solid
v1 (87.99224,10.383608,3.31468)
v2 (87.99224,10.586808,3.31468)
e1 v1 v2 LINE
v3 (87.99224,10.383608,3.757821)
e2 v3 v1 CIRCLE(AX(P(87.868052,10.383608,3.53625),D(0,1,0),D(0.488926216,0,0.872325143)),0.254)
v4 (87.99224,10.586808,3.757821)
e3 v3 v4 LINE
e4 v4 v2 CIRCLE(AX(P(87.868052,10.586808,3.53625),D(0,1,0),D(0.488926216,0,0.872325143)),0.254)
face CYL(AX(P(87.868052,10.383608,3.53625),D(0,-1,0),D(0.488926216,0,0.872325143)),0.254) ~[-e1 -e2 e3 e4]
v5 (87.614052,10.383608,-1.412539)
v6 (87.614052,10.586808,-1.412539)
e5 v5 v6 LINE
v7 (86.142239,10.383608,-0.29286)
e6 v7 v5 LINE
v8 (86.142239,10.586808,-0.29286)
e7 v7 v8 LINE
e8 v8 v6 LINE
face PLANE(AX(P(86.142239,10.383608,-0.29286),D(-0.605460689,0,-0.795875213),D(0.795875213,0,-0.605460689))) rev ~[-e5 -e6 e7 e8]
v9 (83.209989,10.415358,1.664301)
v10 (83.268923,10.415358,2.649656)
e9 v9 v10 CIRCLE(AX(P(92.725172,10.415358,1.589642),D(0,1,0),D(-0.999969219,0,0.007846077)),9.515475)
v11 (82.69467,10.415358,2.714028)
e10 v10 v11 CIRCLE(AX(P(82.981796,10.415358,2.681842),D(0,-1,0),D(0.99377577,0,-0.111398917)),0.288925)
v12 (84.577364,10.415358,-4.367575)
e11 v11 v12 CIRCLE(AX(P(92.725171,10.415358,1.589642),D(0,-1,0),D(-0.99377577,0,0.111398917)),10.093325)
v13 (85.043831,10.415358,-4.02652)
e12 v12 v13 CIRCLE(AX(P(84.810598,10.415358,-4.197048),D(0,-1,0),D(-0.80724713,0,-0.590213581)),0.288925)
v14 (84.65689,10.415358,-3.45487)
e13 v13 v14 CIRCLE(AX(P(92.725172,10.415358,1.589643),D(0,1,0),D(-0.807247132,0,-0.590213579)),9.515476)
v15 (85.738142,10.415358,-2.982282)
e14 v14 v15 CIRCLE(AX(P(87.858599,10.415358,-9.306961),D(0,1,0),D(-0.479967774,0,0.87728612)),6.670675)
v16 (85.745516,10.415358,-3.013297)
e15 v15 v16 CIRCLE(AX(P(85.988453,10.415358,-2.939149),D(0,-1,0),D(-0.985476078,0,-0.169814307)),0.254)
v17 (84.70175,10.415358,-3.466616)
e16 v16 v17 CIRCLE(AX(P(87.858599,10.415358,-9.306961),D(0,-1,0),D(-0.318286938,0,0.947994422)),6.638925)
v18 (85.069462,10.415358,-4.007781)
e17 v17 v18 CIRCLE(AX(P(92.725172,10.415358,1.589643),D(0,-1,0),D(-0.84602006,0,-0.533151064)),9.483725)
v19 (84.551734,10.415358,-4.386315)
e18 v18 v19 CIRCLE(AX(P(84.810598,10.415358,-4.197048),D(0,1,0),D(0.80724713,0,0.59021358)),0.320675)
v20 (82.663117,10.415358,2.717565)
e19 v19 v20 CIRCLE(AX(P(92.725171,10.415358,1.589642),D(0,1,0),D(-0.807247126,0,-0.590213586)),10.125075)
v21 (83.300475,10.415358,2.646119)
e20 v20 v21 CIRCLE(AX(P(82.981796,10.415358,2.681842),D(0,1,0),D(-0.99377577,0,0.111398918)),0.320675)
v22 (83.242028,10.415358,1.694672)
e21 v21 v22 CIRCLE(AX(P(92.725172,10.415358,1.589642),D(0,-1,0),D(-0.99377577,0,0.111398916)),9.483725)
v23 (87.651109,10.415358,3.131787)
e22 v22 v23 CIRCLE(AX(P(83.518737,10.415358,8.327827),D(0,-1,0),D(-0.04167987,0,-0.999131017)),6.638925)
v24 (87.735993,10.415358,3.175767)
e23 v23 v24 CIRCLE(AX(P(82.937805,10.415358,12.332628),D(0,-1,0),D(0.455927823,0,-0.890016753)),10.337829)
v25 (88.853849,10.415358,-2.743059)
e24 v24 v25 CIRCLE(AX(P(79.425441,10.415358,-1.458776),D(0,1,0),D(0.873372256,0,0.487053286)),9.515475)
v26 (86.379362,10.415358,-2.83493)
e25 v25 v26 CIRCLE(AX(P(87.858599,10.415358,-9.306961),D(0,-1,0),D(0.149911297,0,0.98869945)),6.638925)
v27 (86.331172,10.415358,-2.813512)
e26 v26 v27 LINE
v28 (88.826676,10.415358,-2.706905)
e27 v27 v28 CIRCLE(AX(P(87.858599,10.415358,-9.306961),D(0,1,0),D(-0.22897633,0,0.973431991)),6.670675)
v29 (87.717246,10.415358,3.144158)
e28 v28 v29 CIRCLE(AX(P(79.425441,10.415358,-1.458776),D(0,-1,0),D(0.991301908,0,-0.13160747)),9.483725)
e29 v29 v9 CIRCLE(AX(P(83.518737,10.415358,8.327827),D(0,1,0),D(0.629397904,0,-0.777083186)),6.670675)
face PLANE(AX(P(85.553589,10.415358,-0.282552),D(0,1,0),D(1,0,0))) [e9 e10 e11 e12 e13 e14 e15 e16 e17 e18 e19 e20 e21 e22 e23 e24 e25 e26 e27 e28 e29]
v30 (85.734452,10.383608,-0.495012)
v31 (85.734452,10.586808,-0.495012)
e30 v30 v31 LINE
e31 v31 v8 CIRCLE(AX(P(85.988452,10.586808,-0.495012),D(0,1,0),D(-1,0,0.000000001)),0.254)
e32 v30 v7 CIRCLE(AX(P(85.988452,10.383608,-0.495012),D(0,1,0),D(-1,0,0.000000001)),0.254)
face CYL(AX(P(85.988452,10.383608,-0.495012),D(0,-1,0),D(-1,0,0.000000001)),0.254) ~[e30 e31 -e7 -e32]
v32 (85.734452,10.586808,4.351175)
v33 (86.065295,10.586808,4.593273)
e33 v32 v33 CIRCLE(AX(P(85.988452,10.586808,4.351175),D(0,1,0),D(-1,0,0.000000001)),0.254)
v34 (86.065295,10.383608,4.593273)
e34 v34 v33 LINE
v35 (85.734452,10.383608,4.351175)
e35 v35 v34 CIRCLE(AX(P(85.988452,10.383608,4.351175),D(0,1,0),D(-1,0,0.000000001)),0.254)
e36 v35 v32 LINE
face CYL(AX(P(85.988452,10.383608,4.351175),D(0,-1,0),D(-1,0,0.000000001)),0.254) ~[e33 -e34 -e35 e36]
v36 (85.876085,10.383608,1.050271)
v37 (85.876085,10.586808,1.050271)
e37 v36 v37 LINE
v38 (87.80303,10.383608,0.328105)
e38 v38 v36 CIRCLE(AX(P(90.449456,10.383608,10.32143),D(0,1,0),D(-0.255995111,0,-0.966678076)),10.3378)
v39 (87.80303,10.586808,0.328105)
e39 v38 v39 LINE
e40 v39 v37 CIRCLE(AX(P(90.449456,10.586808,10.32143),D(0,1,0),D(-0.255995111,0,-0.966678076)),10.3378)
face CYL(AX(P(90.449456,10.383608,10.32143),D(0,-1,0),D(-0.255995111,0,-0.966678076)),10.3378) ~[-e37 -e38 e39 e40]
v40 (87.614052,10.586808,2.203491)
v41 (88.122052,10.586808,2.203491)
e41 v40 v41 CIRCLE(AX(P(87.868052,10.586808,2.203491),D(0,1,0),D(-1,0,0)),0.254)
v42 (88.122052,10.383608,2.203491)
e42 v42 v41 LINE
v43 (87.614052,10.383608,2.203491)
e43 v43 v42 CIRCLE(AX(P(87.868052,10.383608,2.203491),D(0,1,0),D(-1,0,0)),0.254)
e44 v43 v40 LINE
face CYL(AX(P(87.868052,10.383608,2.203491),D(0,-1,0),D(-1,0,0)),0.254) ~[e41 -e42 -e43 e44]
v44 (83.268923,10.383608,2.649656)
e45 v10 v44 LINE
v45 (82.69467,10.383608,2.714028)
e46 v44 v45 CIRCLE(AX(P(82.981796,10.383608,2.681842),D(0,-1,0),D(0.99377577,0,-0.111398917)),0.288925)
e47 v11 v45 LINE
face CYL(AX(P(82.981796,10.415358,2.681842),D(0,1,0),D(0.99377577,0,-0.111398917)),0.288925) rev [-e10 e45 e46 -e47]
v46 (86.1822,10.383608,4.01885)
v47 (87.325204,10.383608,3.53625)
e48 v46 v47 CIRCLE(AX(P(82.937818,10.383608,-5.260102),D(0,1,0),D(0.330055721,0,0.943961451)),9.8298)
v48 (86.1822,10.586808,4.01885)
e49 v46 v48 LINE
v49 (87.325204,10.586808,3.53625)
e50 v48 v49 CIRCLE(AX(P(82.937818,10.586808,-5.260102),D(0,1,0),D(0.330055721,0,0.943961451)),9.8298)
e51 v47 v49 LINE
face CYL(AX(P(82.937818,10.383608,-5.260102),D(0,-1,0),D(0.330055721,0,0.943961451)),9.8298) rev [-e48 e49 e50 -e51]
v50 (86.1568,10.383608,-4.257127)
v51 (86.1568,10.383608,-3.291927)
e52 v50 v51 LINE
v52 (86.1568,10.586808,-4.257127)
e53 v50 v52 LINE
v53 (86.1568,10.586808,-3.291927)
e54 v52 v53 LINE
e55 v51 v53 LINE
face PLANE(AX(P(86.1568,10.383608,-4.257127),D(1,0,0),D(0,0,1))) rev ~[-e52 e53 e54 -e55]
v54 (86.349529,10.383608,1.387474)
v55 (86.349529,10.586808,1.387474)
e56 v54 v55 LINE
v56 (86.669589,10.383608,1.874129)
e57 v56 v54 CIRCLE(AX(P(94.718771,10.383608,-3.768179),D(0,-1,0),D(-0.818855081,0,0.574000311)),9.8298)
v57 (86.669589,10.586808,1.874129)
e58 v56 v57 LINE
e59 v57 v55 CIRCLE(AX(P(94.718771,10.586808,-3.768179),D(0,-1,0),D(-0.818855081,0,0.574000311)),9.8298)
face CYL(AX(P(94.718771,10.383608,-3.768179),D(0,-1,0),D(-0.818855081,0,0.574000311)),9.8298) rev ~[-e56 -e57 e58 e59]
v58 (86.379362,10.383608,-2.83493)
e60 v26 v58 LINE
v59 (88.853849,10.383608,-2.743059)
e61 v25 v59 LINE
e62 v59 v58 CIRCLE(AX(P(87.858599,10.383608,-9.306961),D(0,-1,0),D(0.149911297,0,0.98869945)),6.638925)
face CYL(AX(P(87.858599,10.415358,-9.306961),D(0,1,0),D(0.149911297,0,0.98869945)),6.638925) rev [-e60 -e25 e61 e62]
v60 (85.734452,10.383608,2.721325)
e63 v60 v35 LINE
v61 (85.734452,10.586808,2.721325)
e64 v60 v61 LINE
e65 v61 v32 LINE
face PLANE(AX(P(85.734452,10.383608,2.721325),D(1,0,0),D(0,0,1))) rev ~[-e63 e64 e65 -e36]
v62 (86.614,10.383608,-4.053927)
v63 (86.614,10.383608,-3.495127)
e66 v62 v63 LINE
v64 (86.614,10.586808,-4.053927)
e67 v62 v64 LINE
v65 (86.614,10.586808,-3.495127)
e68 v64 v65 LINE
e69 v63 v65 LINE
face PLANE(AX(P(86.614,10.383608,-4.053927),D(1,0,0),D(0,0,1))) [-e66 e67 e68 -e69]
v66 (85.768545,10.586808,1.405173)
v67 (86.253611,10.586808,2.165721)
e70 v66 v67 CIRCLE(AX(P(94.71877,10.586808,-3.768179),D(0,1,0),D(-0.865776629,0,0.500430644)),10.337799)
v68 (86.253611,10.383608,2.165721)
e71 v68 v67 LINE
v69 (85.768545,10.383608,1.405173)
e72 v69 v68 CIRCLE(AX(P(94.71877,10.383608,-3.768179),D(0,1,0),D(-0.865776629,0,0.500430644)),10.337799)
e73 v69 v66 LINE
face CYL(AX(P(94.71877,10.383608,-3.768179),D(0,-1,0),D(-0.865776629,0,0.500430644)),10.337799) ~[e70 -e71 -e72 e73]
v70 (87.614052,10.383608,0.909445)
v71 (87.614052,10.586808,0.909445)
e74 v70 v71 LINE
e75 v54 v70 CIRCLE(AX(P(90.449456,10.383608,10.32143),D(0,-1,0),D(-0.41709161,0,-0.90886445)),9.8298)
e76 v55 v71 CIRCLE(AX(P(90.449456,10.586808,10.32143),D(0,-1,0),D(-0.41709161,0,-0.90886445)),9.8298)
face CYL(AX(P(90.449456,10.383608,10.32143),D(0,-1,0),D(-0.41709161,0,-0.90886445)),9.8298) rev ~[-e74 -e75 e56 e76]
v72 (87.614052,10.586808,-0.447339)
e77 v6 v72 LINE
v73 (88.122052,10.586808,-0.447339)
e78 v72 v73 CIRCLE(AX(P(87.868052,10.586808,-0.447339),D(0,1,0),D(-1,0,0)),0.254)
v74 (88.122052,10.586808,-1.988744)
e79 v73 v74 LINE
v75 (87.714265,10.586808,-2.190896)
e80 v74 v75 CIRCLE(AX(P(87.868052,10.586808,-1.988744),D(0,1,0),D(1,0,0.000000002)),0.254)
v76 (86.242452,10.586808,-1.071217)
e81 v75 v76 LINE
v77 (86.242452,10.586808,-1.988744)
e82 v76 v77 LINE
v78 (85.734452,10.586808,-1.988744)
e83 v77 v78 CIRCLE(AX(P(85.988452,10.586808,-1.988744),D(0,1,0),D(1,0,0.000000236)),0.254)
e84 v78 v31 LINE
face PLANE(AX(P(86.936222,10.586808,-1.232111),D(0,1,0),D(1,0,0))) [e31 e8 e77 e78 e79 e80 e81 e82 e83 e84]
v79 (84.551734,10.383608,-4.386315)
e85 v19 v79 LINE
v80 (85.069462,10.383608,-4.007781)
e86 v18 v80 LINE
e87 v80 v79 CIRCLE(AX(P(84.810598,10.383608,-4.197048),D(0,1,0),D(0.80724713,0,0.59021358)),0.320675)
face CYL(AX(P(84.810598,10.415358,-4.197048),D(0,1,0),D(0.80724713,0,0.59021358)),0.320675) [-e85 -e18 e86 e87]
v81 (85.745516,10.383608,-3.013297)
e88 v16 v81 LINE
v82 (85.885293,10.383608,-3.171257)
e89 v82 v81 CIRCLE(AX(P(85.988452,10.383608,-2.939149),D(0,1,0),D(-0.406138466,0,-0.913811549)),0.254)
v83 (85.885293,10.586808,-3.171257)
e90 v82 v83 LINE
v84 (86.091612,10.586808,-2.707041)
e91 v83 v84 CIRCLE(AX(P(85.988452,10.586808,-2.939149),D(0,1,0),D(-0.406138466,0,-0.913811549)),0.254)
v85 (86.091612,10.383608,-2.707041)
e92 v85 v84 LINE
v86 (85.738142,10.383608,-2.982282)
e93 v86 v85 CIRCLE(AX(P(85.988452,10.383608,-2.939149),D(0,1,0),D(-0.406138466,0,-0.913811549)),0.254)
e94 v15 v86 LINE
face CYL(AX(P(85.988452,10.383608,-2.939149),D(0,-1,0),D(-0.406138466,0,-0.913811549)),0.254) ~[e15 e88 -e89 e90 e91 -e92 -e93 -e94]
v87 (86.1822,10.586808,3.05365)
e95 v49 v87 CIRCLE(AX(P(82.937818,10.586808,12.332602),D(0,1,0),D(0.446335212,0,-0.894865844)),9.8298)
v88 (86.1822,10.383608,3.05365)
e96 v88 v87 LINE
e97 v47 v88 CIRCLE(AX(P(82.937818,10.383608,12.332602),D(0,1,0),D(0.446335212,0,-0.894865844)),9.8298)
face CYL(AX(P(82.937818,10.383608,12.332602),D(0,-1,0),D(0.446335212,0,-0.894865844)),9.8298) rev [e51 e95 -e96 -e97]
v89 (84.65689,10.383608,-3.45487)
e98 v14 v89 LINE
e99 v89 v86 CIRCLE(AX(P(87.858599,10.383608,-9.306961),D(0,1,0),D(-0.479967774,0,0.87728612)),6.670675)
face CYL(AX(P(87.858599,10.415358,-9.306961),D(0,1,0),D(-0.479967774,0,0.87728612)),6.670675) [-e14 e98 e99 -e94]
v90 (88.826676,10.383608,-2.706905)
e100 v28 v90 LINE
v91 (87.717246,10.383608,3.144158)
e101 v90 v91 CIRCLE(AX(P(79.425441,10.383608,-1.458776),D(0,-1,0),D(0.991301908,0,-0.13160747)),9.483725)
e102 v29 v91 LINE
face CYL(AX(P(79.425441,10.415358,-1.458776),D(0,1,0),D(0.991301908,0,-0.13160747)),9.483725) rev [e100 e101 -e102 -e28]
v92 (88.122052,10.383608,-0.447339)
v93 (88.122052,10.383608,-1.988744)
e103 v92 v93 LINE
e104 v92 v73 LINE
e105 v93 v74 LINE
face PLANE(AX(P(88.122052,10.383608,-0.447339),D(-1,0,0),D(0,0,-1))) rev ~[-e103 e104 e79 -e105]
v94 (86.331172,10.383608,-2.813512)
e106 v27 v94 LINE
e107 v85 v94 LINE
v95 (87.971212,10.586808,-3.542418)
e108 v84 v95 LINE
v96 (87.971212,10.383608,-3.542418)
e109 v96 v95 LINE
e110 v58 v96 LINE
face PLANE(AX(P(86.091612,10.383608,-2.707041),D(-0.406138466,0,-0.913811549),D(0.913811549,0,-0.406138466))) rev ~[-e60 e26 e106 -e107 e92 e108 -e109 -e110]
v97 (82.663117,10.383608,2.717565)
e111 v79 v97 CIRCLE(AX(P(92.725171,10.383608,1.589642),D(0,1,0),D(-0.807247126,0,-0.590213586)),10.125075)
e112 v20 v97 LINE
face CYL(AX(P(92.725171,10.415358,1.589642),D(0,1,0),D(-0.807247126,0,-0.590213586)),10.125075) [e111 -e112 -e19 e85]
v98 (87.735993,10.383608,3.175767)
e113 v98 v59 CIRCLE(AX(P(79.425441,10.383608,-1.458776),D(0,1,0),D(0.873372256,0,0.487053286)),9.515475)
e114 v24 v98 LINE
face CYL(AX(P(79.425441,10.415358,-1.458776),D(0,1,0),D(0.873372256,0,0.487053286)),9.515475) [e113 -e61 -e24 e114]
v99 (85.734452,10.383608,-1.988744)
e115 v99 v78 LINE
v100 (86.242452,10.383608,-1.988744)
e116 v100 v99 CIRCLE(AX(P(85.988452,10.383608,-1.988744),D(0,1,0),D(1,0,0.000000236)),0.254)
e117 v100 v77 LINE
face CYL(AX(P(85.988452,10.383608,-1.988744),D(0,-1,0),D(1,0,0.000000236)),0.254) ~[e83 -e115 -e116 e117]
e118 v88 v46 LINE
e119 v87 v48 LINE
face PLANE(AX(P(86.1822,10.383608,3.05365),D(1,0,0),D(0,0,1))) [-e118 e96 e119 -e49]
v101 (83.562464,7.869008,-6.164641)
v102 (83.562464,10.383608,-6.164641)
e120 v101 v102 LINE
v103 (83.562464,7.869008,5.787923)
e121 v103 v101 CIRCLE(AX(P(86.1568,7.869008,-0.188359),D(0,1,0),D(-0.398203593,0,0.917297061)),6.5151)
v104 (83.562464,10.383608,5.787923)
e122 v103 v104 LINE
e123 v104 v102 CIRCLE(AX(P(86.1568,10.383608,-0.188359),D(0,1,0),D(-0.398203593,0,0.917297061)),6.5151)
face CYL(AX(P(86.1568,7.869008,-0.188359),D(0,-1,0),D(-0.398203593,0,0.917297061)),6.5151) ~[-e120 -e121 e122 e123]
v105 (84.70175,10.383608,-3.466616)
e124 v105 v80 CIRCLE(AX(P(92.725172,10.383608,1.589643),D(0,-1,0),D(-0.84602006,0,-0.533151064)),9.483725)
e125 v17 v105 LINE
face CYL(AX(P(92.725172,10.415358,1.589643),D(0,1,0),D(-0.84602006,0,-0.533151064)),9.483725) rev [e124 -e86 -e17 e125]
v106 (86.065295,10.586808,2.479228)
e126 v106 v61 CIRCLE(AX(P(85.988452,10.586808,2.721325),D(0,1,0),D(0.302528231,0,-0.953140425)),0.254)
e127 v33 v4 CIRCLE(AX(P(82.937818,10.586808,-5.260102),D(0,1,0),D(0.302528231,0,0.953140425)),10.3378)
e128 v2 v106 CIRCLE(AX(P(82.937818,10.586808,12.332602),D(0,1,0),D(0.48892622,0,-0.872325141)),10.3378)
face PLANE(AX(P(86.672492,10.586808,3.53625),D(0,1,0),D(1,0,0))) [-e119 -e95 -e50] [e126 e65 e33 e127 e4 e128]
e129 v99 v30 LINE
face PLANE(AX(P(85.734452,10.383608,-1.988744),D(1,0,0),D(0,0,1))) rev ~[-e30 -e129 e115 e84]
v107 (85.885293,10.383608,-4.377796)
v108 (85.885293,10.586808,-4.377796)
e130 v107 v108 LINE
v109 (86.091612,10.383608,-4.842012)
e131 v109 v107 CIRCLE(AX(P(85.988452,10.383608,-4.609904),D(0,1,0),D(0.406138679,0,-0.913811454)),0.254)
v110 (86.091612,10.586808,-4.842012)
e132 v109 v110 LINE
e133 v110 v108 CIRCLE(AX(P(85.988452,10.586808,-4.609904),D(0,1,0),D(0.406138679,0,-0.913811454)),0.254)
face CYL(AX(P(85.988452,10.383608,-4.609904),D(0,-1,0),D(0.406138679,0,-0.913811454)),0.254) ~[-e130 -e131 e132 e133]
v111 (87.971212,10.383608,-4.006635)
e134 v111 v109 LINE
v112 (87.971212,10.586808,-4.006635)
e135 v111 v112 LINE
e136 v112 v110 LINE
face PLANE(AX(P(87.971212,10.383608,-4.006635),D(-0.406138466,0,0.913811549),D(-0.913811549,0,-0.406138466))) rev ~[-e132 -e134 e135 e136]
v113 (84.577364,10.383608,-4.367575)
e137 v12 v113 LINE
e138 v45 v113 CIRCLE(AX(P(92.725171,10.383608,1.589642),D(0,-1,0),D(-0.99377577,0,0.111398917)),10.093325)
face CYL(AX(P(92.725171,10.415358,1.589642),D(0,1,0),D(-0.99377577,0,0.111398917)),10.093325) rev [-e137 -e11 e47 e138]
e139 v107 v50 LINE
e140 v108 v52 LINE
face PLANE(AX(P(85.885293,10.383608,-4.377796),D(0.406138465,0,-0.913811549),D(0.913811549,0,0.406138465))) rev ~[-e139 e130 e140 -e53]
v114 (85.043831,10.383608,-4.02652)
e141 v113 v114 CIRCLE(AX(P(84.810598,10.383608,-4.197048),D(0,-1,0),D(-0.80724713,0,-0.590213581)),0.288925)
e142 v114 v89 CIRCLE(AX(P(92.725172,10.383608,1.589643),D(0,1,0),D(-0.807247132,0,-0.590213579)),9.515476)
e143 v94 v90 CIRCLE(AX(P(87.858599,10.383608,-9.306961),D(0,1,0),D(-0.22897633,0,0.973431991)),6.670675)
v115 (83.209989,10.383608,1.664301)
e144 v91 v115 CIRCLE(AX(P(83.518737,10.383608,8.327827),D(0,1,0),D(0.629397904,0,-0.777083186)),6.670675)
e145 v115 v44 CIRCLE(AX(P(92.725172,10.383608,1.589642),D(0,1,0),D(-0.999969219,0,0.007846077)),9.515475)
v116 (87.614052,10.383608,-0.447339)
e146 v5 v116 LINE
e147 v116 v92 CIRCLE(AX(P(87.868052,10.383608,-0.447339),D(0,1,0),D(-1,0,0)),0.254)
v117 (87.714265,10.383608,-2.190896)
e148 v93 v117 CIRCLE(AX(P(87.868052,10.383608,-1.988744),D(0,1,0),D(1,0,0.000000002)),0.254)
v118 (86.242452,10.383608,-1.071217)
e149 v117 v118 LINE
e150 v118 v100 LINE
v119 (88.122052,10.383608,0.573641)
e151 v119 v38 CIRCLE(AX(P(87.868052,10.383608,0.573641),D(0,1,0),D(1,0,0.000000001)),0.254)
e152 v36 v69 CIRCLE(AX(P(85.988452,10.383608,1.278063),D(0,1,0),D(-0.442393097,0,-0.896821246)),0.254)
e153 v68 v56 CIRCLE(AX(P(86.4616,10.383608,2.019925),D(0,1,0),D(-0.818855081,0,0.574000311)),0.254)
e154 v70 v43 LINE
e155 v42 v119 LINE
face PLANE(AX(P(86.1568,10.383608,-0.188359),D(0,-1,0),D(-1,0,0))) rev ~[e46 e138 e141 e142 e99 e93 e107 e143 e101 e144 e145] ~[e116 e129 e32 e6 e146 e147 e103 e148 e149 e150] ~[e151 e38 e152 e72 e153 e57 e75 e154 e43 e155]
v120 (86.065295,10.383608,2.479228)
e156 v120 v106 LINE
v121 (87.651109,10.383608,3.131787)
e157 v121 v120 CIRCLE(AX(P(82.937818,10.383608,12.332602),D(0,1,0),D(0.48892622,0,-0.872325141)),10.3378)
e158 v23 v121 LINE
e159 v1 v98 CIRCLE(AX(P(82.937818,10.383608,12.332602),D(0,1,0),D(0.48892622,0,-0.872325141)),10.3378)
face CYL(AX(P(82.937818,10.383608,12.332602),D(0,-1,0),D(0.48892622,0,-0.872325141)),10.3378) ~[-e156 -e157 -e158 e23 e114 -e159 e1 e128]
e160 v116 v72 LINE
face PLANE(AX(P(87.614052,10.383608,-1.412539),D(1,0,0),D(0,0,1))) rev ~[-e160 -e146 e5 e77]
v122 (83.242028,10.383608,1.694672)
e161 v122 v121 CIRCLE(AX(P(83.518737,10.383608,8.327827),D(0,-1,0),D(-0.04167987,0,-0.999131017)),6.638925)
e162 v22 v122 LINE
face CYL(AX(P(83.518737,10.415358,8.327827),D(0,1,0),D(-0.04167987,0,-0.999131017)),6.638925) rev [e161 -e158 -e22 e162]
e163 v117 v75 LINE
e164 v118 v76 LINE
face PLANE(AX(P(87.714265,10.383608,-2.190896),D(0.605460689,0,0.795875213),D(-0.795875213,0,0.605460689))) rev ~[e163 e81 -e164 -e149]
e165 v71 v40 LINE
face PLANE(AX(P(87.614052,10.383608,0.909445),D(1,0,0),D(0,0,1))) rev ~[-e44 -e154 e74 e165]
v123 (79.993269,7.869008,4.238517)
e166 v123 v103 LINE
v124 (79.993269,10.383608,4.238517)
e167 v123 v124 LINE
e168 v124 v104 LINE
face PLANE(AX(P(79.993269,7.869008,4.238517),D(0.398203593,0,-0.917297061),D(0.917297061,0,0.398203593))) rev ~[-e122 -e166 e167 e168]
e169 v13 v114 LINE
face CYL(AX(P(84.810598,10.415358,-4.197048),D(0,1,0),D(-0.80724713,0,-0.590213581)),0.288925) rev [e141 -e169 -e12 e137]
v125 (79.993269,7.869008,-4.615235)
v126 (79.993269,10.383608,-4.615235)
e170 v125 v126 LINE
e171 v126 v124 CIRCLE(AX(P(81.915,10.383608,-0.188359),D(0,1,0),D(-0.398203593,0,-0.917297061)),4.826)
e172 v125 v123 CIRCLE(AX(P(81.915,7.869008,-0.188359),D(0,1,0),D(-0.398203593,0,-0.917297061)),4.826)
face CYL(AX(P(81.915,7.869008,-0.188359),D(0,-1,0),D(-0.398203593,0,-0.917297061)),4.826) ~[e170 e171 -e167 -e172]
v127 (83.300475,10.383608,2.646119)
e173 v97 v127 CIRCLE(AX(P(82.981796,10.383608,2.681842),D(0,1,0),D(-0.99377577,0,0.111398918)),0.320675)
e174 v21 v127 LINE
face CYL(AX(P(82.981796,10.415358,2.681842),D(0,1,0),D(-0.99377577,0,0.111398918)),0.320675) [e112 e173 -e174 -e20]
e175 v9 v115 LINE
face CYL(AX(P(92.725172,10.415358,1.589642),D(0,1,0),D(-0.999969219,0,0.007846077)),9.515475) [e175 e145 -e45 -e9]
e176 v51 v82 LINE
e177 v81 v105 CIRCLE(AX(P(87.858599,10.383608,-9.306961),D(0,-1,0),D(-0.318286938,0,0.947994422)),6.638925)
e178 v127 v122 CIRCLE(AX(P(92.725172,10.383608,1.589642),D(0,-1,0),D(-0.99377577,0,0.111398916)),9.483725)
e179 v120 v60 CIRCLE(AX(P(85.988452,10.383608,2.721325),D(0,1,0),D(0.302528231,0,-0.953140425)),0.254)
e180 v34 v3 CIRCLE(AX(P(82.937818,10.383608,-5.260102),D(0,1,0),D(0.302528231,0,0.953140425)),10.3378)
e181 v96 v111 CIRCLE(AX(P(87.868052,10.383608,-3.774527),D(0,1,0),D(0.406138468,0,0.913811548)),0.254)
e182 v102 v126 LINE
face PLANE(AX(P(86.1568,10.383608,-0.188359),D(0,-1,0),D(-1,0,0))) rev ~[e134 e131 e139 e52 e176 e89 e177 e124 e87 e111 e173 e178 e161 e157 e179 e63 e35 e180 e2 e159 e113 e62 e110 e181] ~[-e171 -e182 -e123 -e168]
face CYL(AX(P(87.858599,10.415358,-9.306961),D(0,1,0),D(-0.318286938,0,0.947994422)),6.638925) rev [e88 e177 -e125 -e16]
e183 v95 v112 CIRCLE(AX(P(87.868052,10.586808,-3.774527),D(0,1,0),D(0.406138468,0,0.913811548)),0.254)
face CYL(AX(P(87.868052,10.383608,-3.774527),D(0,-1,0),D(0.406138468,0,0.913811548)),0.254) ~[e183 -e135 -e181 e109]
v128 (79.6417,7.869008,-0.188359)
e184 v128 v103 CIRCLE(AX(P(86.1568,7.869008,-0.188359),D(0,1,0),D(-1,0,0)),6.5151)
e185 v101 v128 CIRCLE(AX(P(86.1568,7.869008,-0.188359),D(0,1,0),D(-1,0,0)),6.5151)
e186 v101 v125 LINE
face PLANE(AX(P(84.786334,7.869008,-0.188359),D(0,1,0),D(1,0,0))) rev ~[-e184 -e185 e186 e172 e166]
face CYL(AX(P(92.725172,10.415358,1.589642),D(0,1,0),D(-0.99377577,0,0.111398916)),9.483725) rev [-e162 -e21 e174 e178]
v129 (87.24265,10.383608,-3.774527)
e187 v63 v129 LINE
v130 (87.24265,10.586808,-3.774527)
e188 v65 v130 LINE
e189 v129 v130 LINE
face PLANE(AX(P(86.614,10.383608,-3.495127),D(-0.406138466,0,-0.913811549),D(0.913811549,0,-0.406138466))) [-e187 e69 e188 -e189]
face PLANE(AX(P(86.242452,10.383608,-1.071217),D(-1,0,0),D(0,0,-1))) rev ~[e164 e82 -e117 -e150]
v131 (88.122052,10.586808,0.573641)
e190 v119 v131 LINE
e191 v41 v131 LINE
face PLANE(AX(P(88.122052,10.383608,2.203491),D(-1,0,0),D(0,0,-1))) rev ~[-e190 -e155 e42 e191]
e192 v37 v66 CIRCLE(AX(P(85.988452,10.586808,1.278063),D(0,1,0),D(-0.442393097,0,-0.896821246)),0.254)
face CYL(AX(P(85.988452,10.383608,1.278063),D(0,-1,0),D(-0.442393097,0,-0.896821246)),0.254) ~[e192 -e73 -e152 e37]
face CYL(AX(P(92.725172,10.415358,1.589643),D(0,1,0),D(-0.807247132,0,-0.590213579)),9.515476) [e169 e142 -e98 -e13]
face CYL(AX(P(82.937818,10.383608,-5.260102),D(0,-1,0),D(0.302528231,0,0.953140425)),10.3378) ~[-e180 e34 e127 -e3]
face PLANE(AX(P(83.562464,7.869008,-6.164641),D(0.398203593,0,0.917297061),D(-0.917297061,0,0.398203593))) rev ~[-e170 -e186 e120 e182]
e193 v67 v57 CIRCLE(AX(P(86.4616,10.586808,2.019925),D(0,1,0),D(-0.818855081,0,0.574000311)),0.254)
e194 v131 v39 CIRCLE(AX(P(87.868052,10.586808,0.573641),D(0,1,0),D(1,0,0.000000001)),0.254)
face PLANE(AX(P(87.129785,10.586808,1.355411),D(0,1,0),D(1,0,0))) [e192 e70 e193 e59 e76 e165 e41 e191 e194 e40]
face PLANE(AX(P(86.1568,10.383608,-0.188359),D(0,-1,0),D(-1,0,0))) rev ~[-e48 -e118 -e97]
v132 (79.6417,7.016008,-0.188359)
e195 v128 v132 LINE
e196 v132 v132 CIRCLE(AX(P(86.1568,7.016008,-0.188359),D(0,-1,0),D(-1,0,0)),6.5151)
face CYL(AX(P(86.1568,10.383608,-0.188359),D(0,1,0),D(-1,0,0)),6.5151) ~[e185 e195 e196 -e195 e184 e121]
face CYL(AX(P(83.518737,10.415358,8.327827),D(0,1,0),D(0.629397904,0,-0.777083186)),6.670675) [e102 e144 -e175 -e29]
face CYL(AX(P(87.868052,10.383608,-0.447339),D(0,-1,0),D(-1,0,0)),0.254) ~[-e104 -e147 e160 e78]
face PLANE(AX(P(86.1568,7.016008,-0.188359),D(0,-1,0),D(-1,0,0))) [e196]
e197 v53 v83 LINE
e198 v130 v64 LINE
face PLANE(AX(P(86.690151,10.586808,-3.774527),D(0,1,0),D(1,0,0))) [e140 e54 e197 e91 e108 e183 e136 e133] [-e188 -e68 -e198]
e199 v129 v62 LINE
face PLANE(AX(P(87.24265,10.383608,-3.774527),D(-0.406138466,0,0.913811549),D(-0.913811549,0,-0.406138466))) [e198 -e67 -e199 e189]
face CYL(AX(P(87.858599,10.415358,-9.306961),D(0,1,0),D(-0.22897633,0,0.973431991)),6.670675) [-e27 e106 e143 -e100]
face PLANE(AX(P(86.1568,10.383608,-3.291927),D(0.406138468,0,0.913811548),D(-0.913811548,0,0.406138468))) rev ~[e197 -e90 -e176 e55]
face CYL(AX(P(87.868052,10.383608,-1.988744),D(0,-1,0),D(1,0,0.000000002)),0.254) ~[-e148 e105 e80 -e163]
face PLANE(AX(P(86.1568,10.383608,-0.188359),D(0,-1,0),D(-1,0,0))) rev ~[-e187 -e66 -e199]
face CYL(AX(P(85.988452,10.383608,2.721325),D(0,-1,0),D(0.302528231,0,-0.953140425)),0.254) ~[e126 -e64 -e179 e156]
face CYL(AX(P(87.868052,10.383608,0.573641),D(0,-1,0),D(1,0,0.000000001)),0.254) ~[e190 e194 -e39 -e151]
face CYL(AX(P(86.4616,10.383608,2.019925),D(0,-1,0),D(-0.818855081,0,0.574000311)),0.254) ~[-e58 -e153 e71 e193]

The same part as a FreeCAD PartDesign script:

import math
import FreeCAD as App
import Part
import Sketcher
from FreeCAD import Vector
Q = App.Units.Quantity

doc = App.newDocument("Part")
body = doc.addObject("PartDesign::Body", "Body")

sketch1 = body.newObject("Sketcher::SketchObject", "Sketch")
sketch1.AttachmentSupport = (doc.getObject("XZ_Plane"), [""])
sketch1.MapMode = "FlatFace"
sketch1.AttachmentOffset = App.Placement(Vector(0, 0, -10.383608), App.Rotation())
sketch1.addGeometry(Part.Circle(Vector(86, 0, 0), Vector(0, 0, 1), 7), False)
sketch1.addConstraint([
    Sketcher.Constraint("Diameter", 0, Q("0.513 in")),
    Sketcher.Constraint("DistanceX", -1, 1, 0, 3, Q("3.392 in")),
    Sketcher.Constraint("DistanceY", 0, 3, -1, 1, Q("0.188359 mm")),
])
pad1 = body.newObject("PartDesign::Pad", "Pad")
pad1.Profile = sketch1
pad1.Length = 3.3676

sketch2 = body.newObject("Sketcher::SketchObject", "Sketch001")
sketch2.AttachmentSupport = (doc.getObject("XZ_Plane"), [""])
sketch2.MapMode = "FlatFace"
sketch2.AttachmentOffset = App.Placement(Vector(0, 0, -7.869008), App.Rotation())
sketch2.addGeometry([
    Part.LineSegment(Vector(83.6, -6.2, 0), Vector(80, -4.6, 0)),
    Part.ArcOfCircle(Part.Circle(Vector(81.9, -0.2, 0), Vector(0, 0, 1), 4.8), math.radians(113), math.radians(247)),
    Part.LineSegment(Vector(80, 4.2, 0), Vector(83.6, 5.8, 0)),
    Part.ArcOfCircle(Part.Circle(Vector(86.2, -0.2, 0), Vector(0, 0, 1), 6.5), math.radians(-113), math.radians(113)),
], False)
sketch2.addConstraint([
    Sketcher.Constraint("Tangent", 0, 2, 1, 2),
    Sketcher.Constraint("Tangent", 1, 1, 2, 1),
    Sketcher.Constraint("Tangent", 2, 2, 3, 2),
    Sketcher.Constraint("Tangent", 3, 1, 0, 1),
    Sketcher.Constraint("Horizontal", 1, 3, 3, 3),
    Sketcher.Constraint("Radius", 1, Q("0.19 in")),
    Sketcher.Constraint("Radius", 3, Q("0.2565 in")),
    Sketcher.Constraint("DistanceX", -1, 1, 1, 3, Q("3.225 in")),
    Sketcher.Constraint("DistanceX", -1, 1, 3, 3, Q("3.392 in")),
    Sketcher.Constraint("DistanceY", 1, 3, -1, 1, Q("0.188359 mm")),
])
pad2 = body.newObject("PartDesign::Pad", "Pad001")
pad2.Profile = sketch2
pad2.Length = Q("0.099 in")
pad2.Reversed = True

sketch3 = body.newObject("Sketcher::SketchObject", "Sketch002")
sketch3.AttachmentSupport = (doc.getObject("XZ_Plane"), [""])
sketch3.MapMode = "FlatFace"
sketch3.AttachmentOffset = App.Placement(Vector(0, 0, -10.415358), App.Rotation())
sketch3.addGeometry([
    Part.LineSegment(Vector(86.379, -2.835, 0), Vector(86.331, -2.814, 0)),
    Part.ArcOfCircle(Part.Circle(Vector(87.859, -9.307, 0), Vector(0, 0, 1), 6.671), math.radians(82), math.radians(103)),
    Part.ArcOfCircle(Part.Circle(Vector(79.425, -1.459, 0), Vector(0, 0, 1), 9.484), math.radians(-8), math.radians(29)),
    Part.ArcOfCircle(Part.Circle(Vector(83.519, 8.328, 0), Vector(0, 0, 1), 6.671), math.radians(-93), math.radians(-51)),
    Part.ArcOfCircle(Part.Circle(Vector(92.725, 1.59, 0), Vector(0, 0, 1), 9.515), math.radians(173.6), math.radians(179.55)),
    Part.ArcOfCircle(Part.Circle(Vector(82.982, 2.682, 0), Vector(0, 0, 1), 0.289), math.radians(-6), math.radians(174)),
    Part.ArcOfCircle(Part.Circle(Vector(92.725, 1.59, 0), Vector(0, 0, 1), 10.093), math.radians(174), math.radians(216)),
    Part.ArcOfCircle(Part.Circle(Vector(84.811, -4.197, 0), Vector(0, 0, 1), 0.289), math.radians(-144), math.radians(36)),
    Part.ArcOfCircle(Part.Circle(Vector(92.725, 1.59, 0), Vector(0, 0, 1), 9.515), math.radians(-147.99), math.radians(-143.83)),
    Part.ArcOfCircle(Part.Circle(Vector(87.859, -9.307, 0), Vector(0, 0, 1), 6.671), math.radians(108.53), math.radians(118.68)),
    Part.ArcOfCircle(Part.Circle(Vector(85.988, -2.939, 0), Vector(0, 0, 1), 0.254), math.radians(-170.22), math.radians(-163.03)),
    Part.ArcOfCircle(Part.Circle(Vector(87.859, -9.307, 0), Vector(0, 0, 1), 6.639), math.radians(108.56), math.radians(118.39)),
    Part.ArcOfCircle(Part.Circle(Vector(92.725, 1.59, 0), Vector(0, 0, 1), 9.484), math.radians(-147.78), math.radians(-143.83)),
    Part.ArcOfCircle(Part.Circle(Vector(84.811, -4.197, 0), Vector(0, 0, 1), 0.321), math.radians(-144), math.radians(36)),
    Part.ArcOfCircle(Part.Circle(Vector(92.725, 1.59, 0), Vector(0, 0, 1), 10.125), math.radians(174), math.radians(216)),
    Part.ArcOfCircle(Part.Circle(Vector(82.982, 2.682, 0), Vector(0, 0, 1), 0.321), math.radians(-6), math.radians(174)),
    Part.ArcOfCircle(Part.Circle(Vector(92.725, 1.59, 0), Vector(0, 0, 1), 9.484), math.radians(173.6), math.radians(179.37)),
    Part.ArcOfCircle(Part.Circle(Vector(83.519, 8.328, 0), Vector(0, 0, 1), 6.639), math.radians(-92), math.radians(-52)),
    Part.ArcOfCircle(Part.Circle(Vector(82.938, 12.333, 0), Vector(0, 0, 1), 10.338), math.radians(-62.88), math.radians(-62.35)),
    Part.ArcOfCircle(Part.Circle(Vector(79.425, -1.459, 0), Vector(0, 0, 1), 9.515), math.radians(-8), math.radians(29)),
    Part.ArcOfCircle(Part.Circle(Vector(87.859, -9.307, 0), Vector(0, 0, 1), 6.639), math.radians(81), math.radians(103)),
], False)
sketch3.addConstraint([
    Sketcher.Constraint("Coincident", 0, 2, 1, 2),
    Sketcher.Constraint("Coincident", 1, 1, 2, 1),
    Sketcher.Constraint("Coincident", 2, 2, 3, 2),
    Sketcher.Constraint("Coincident", 3, 1, 4, 2),
    Sketcher.Constraint("Tangent", 4, 1, 5, 1),
    Sketcher.Constraint("Tangent", 5, 2, 6, 1),
    Sketcher.Constraint("Tangent", 6, 2, 7, 1),
    Sketcher.Constraint("Tangent", 7, 2, 8, 2),
    Sketcher.Constraint("Coincident", 8, 1, 9, 2),
    Sketcher.Constraint("Coincident", 9, 1, 10, 1),
    Sketcher.Constraint("Coincident", 10, 2, 11, 1),
    Sketcher.Constraint("Coincident", 11, 2, 12, 1),
    Sketcher.Constraint("Tangent", 12, 2, 13, 2),
    Sketcher.Constraint("Tangent", 13, 1, 14, 2),
    Sketcher.Constraint("Tangent", 14, 1, 15, 2),
    Sketcher.Constraint("Tangent", 15, 1, 16, 1),
    Sketcher.Constraint("Coincident", 16, 2, 17, 1),
    Sketcher.Constraint("Coincident", 17, 2, 18, 1),
    Sketcher.Constraint("Coincident", 18, 2, 19, 2),
    Sketcher.Constraint("Coincident", 19, 1, 20, 1),
    Sketcher.Constraint("Coincident", 20, 2, 0, 1),
    Sketcher.Constraint("Coincident", 6, 3, 4, 3),
    Sketcher.Constraint("Coincident", 8, 3, 4, 3),
    Sketcher.Constraint("Coincident", 9, 3, 1, 3),
    Sketcher.Constraint("Coincident", 11, 3, 1, 3),
    Sketcher.Constraint("Coincident", 12, 3, 4, 3),
    Sketcher.Constraint("Coincident", 13, 3, 7, 3),
    Sketcher.Constraint("Coincident", 14, 3, 4, 3),
    Sketcher.Constraint("Coincident", 15, 3, 5, 3),
    Sketcher.Constraint("Coincident", 16, 3, 4, 3),
    Sketcher.Constraint("Coincident", 17, 3, 3, 3),
    Sketcher.Constraint("Coincident", 19, 3, 2, 3),
    Sketcher.Constraint("Coincident", 20, 3, 1, 3),
    Sketcher.Constraint("Equal", 1, 3),
    Sketcher.Constraint("Equal", 5, 7),
    Sketcher.Constraint("Equal", 3, 9),
    Sketcher.Constraint("Equal", 2, 12),
    Sketcher.Constraint("Equal", 11, 17),
    Sketcher.Constraint("Equal", 8, 19),
    Sketcher.Constraint("Equal", 17, 20),
    Sketcher.Constraint("Radius", 10, Q("0.01 in")),
    Sketcher.Constraint("DistanceX", 7, 3, 1, 3, Q("0.1200001 in")),
    Sketcher.Constraint("DistanceX", -1, 1, 1, 3, Q("3.459 in")),
    Sketcher.Constraint("DistanceX", -1, 1, 5, 3, Q("3.2669998 in")),
    Sketcher.Constraint("Radius", 18, Q("10.337829 mm")),
    Sketcher.Constraint("DistanceY", 1, 3, 4, 3, Q("0.4290001 in")),
    Sketcher.Constraint("DistanceY", 4, 3, 5, 3, Q("0.043 in")),
    Sketcher.Constraint("Radius", 1, Q("6.670675 mm")),
    Sketcher.Constraint("Radius", 2, Q("9.483725 mm")),
    Sketcher.Constraint("Radius", 4, Q("9.515475 mm")),
    Sketcher.Constraint("Radius", 5, Q("0.288925 mm")),
    Sketcher.Constraint("Radius", 11, Q("6.638925 mm")),
    Sketcher.Constraint("DistanceY", -1, 1, 3, 1, Q("1.664301 mm")),
    Sketcher.Constraint("DistanceY", 7, 3, 10, 3, Q("1.257899 mm")),
    Sketcher.Constraint("DistanceY", 3, 3, 18, 3, Q("4.004801 mm")),
    Sketcher.Constraint("DistanceX", 12, 2, 20, 2, Q("1.309901 mm")),
    Sketcher.Constraint("DistanceY", 1, 3, -1, 1, Q("9.306961 mm")),
    Sketcher.Constraint("DistanceX", -1, 1, 2, 3, Q("79.425441 mm")),
    Sketcher.Constraint("DistanceY", -1, 1, 18, 3, Q("12.332628 mm")),
    Sketcher.Constraint("DistanceY", -1, 1, 2, 2, Q("3.144158 mm")),
    Sketcher.Constraint("DistanceX", -1, 1, 9, 1, Q("85.738142 mm")),
    Sketcher.Constraint("DistanceX", -1, 1, 17, 2, Q("87.651109 mm")),
    Sketcher.Constraint("DistanceX", 10, 3, 0, 2, Q("0.34272 mm")),
])
pad3 = body.newObject("PartDesign::Pad", "Pad002")
pad3.Profile = sketch3
pad3.Length = 0.03175

sketch4 = body.newObject("Sketcher::SketchObject", "Sketch003")
sketch4.AttachmentSupport = (doc.getObject("XZ_Plane"), [""])
sketch4.MapMode = "FlatFace"
sketch4.AttachmentOffset = App.Placement(Vector(0, 0, -10.383608), App.Rotation())
sketch4.addGeometry([
    Part.LineSegment(Vector(87.97, -4.01, 0), Vector(86.09, -4.84, 0)),
    Part.ArcOfCircle(Part.Circle(Vector(85.99, -4.61, 0), Vector(0, 0, 1), 0.25), math.radians(114), math.radians(294)),
    Part.LineSegment(Vector(85.89, -4.38, 0), Vector(86.16, -4.26, 0)),
    Part.LineSegment(Vector(86.16, -4.26, 0), Vector(86.16, -3.29, 0)),
    Part.LineSegment(Vector(86.16, -3.29, 0), Vector(85.89, -3.17, 0)),
    Part.ArcOfCircle(Part.Circle(Vector(85.99, -2.94, 0), Vector(0, 0, 1), 0.25), math.radians(66), math.radians(246)),
    Part.LineSegment(Vector(86.09, -2.71, 0), Vector(87.97, -3.54, 0)),
    Part.ArcOfCircle(Part.Circle(Vector(87.87, -3.77, 0), Vector(0, 0, 1), 0.25), math.radians(-66), math.radians(66)),
    Part.LineSegment(Vector(86.61, -4.05, 0), Vector(87.24, -3.77, 0)),
    Part.LineSegment(Vector(87.24, -3.77, 0), Vector(86.61, -3.5, 0)),
    Part.LineSegment(Vector(86.61, -3.5, 0), Vector(86.61, -4.05, 0)),
], False)
sketch4.addConstraint([
    Sketcher.Constraint("Tangent", 0, 2, 1, 2),
    Sketcher.Constraint("Tangent", 1, 1, 2, 1),
    Sketcher.Constraint("Coincident", 2, 2, 3, 1),
    Sketcher.Constraint("Coincident", 3, 2, 4, 1),
    Sketcher.Constraint("Tangent", 4, 2, 5, 2),
    Sketcher.Constraint("Tangent", 5, 1, 6, 1),
    Sketcher.Constraint("Tangent", 6, 2, 7, 2),
    Sketcher.Constraint("Tangent", 7, 1, 0, 1),
    Sketcher.Constraint("Coincident", 8, 2, 9, 1),
    Sketcher.Constraint("Coincident", 9, 2, 10, 1),
    Sketcher.Constraint("Coincident", 10, 2, 8, 1),
    Sketcher.Constraint("Vertical", 3),
    Sketcher.Constraint("Vertical", 10),
    Sketcher.Constraint("Equal", 1, 5),
    Sketcher.Constraint("Equal", 5, 7),
    Sketcher.Constraint("Parallel", 0, 2),
    Sketcher.Constraint("Parallel", 4, 6),
    Sketcher.Constraint("Parallel", 2, 8),
    Sketcher.Constraint("Parallel", 6, 9),
    Sketcher.Constraint("Horizontal", 7, 3, 8, 2),
    Sketcher.Constraint("Vertical", 1, 3, 5, 3),
    Sketcher.Constraint("Vertical", 1, 1, 4, 2),
    Sketcher.Constraint("Radius", 1, Q("0.01 in")),
    Sketcher.Constraint("DistanceY", 3, 1, 3, 2, Q("0.038 in")),
    Sketcher.Constraint("DistanceY", 10, 2, 10, 1, Q("0.022 in")),
    Sketcher.Constraint("DistanceX", -1, 1, 9, 2, Q("3.41 in")),
    Sketcher.Constraint("DistanceX", -1, 1, 2, 2, Q("3.392 in")),
    Sketcher.Constraint("DistanceX", 5, 3, 7, 3, Q("0.074 in")),
    Sketcher.Constraint("Distance", 0, Q("2.056879 mm")),
    Sketcher.Constraint("DistanceY", 5, 3, -1, 1, Q("2.939149 mm")),
])
pad4 = body.newObject("PartDesign::Pad", "Pad003")
pad4.Profile = sketch4
pad4.Length = Q("0.008 in")
pad4.Reversed = True

sketch5 = body.newObject("Sketcher::SketchObject", "Sketch004")
sketch5.AttachmentSupport = (doc.getObject("XZ_Plane"), [""])
sketch5.MapMode = "FlatFace"
sketch5.AttachmentOffset = App.Placement(Vector(0, 0, -10.383608), App.Rotation())
sketch5.addGeometry([
    Part.LineSegment(Vector(88.12, -0.45, 0), Vector(88.12, -1.99, 0)),
    Part.ArcOfCircle(Part.Circle(Vector(87.87, -1.99, 0), Vector(0, 0, 1), 0.25), math.radians(-127), math.radians(0)),
    Part.LineSegment(Vector(87.71, -2.19, 0), Vector(86.24, -1.07, 0)),
    Part.LineSegment(Vector(86.24, -1.07, 0), Vector(86.24, -1.99, 0)),
    Part.ArcOfCircle(Part.Circle(Vector(85.99, -1.99, 0), Vector(0, 0, 1), 0.25), math.radians(180), math.radians(360)),
    Part.LineSegment(Vector(85.73, -1.99, 0), Vector(85.73, -0.5, 0)),
    Part.ArcOfCircle(Part.Circle(Vector(85.99, -0.5, 0), Vector(0, 0, 1), 0.25), math.radians(53), math.radians(180)),
    Part.LineSegment(Vector(86.14, -0.29, 0), Vector(87.61, -1.41, 0)),
    Part.LineSegment(Vector(87.61, -1.41, 0), Vector(87.61, -0.45, 0)),
    Part.ArcOfCircle(Part.Circle(Vector(87.87, -0.45, 0), Vector(0, 0, 1), 0.25), math.radians(0), math.radians(180)),
], False)
sketch5.addConstraint([
    Sketcher.Constraint("Tangent", 0, 2, 1, 2),
    Sketcher.Constraint("Tangent", 1, 1, 2, 1),
    Sketcher.Constraint("Coincident", 2, 2, 3, 1),
    Sketcher.Constraint("Tangent", 3, 2, 4, 2),
    Sketcher.Constraint("Tangent", 4, 1, 5, 1),
    Sketcher.Constraint("Tangent", 5, 2, 6, 2),
    Sketcher.Constraint("Tangent", 6, 1, 7, 1),
    Sketcher.Constraint("Coincident", 7, 2, 8, 1),
    Sketcher.Constraint("Tangent", 8, 2, 9, 2),
    Sketcher.Constraint("Tangent", 9, 1, 0, 1),
    Sketcher.Constraint("Vertical", 0),
    Sketcher.Constraint("Vertical", 3),
    Sketcher.Constraint("Vertical", 5),
    Sketcher.Constraint("Vertical", 8),
    Sketcher.Constraint("Equal", 1, 4),
    Sketcher.Constraint("Equal", 4, 6),
    Sketcher.Constraint("Equal", 6, 9),
    Sketcher.Constraint("Parallel", 2, 7),
    Sketcher.Constraint("Horizontal", 1, 3, 4, 3),
    Sketcher.Constraint("Radius", 1, Q("0.01 in")),
    Sketcher.Constraint("DistanceY", 8, 1, 8, 2, Q("0.038 in")),
    Sketcher.Constraint("DistanceX", 4, 3, 1, 3, Q("0.074 in")),
    Sketcher.Constraint("Distance", 2, Q("1.849301 mm")),
    Sketcher.Constraint("DistanceY", 5, 1, 5, 2, Q("1.493732 mm")),
    Sketcher.Constraint("DistanceY", 9, 3, -1, 1, Q("0.447339 mm")),
    Sketcher.Constraint("DistanceX", -1, 1, 6, 1, Q("86.142239 mm")),
])
pad5 = body.newObject("PartDesign::Pad", "Pad004")
pad5.Profile = sketch5
pad5.Length = Q("0.008 in")
pad5.Reversed = True

sketch6 = body.newObject("Sketcher::SketchObject", "Sketch005")
sketch6.AttachmentSupport = (doc.getObject("XZ_Plane"), [""])
sketch6.MapMode = "FlatFace"
sketch6.AttachmentOffset = App.Placement(Vector(0, 0, -10.383608), App.Rotation())
sketch6.addGeometry([
    Part.LineSegment(Vector(88.12, 2.2, 0), Vector(88.12, 0.57, 0)),
    Part.ArcOfCircle(Part.Circle(Vector(87.87, 0.57, 0), Vector(0, 0, 1), 0.25), math.radians(-105), math.radians(0)),
    Part.ArcOfCircle(Part.Circle(Vector(90.45, 10.32, 0), Vector(0, 0, 1), 10.34), math.radians(-116.26), math.radians(-104.83)),
    Part.ArcOfCircle(Part.Circle(Vector(85.99, 1.28, 0), Vector(0, 0, 1), 0.25), math.radians(150), math.radians(244)),
    Part.ArcOfCircle(Part.Circle(Vector(94.72, -3.77, 0), Vector(0, 0, 1), 10.34), math.radians(144.97), math.radians(149.97)),
    Part.ArcOfCircle(Part.Circle(Vector(86.46, 2.02, 0), Vector(0, 0, 1), 0.25), math.radians(-35), math.radians(145)),
    Part.ArcOfCircle(Part.Circle(Vector(94.72, -3.77, 0), Vector(0, 0, 1), 9.83), math.radians(144.97), math.radians(148.37)),
    Part.ArcOfCircle(Part.Circle(Vector(90.45, 10.32, 0), Vector(0, 0, 1), 9.83), math.radians(-114.65), math.radians(-106.77)),
    Part.LineSegment(Vector(87.61, 0.91, 0), Vector(87.61, 2.2, 0)),
    Part.ArcOfCircle(Part.Circle(Vector(87.87, 2.2, 0), Vector(0, 0, 1), 0.25), math.radians(0), math.radians(180)),
], False)
sketch6.addConstraint([
    Sketcher.Constraint("Tangent", 0, 2, 1, 2),
    Sketcher.Constraint("Tangent", 1, 1, 2, 2),
    Sketcher.Constraint("Tangent", 2, 1, 3, 2),
    Sketcher.Constraint("Tangent", 3, 1, 4, 2),
    Sketcher.Constraint("Tangent", 4, 1, 5, 2),
    Sketcher.Constraint("Tangent", 5, 1, 6, 1),
    Sketcher.Constraint("Coincident", 6, 2, 7, 1),
    Sketcher.Constraint("Coincident", 7, 2, 8, 1),
    Sketcher.Constraint("Tangent", 8, 2, 9, 2),
    Sketcher.Constraint("Tangent", 9, 1, 0, 1),
    Sketcher.Constraint("Vertical", 0),
    Sketcher.Constraint("Vertical", 8),
    Sketcher.Constraint("Coincident", 6, 3, 4, 3),
    Sketcher.Constraint("Coincident", 7, 3, 2, 3),
    Sketcher.Constraint("Equal", 1, 3),
    Sketcher.Constraint("Equal", 2, 4),
    Sketcher.Constraint("Equal", 3, 5),
    Sketcher.Constraint("Equal", 6, 7),
    Sketcher.Constraint("Equal", 5, 9),
    Sketcher.Constraint("Radius", 1, Q("0.01 in")),
    Sketcher.Constraint("Radius", 2, Q("0.407 in")),
    Sketcher.Constraint("DistanceX", -1, 1, 5, 3, Q("3.404 in")),
    Sketcher.Constraint("DistanceX", 3, 3, 1, 3, Q("0.074 in")),
    Sketcher.Constraint("DistanceY", 1, 1, 3, 3, Q("0.0373999 in")),
    Sketcher.Constraint("DistanceY", 0, 2, 0, 1, Q("1.62985 mm")),
    Sketcher.Constraint("DistanceY", 6, 2, 3, 1, Q("0.017699 mm")),
    Sketcher.Constraint("DistanceY", -1, 1, 1, 3, Q("0.573641 mm")),
    Sketcher.Constraint("DistanceX", -1, 1, 4, 3, Q("94.71877 mm")),
])
pad6 = body.newObject("PartDesign::Pad", "Pad005")
pad6.Profile = sketch6
pad6.Length = Q("0.008 in")
pad6.Reversed = True

sketch7 = body.newObject("Sketcher::SketchObject", "Sketch006")
sketch7.AttachmentSupport = (doc.getObject("XZ_Plane"), [""])
sketch7.MapMode = "FlatFace"
sketch7.AttachmentOffset = App.Placement(Vector(0, 0, -10.383608), App.Rotation())
sketch7.addGeometry([
    Part.LineSegment(Vector(85.73, 2.72, 0), Vector(85.73, 4.35, 0)),
    Part.ArcOfCircle(Part.Circle(Vector(85.99, 4.35, 0), Vector(0, 0, 1), 0.25), math.radians(72), math.radians(180)),
    Part.ArcOfCircle(Part.Circle(Vector(82.94, -5.26, 0), Vector(0, 0, 1), 10.34), math.radians(60.73), math.radians(72.39)),
    Part.ArcOfCircle(Part.Circle(Vector(87.87, 3.54, 0), Vector(0, 0, 1), 0.25), math.radians(-61), math.radians(61)),
    Part.ArcOfCircle(Part.Circle(Vector(82.94, 12.33, 0), Vector(0, 0, 1), 10.34), math.radians(-72.39), math.radians(-60.73)),
    Part.ArcOfCircle(Part.Circle(Vector(85.99, 2.72, 0), Vector(0, 0, 1), 0.25), math.radians(-180), math.radians(-72)),
    Part.LineSegment(Vector(86.18, 4.02, 0), Vector(86.18, 3.05, 0)),
    Part.ArcOfCircle(Part.Circle(Vector(82.94, 12.33, 0), Vector(0, 0, 1), 9.83), math.radians(-70.73), math.radians(-63.49)),
    Part.ArcOfCircle(Part.Circle(Vector(82.94, -5.26, 0), Vector(0, 0, 1), 9.83), math.radians(63.49), math.radians(70.73)),
], False)
sketch7.addConstraint([
    Sketcher.Constraint("Tangent", 0, 2, 1, 2),
    Sketcher.Constraint("Tangent", 1, 1, 2, 2),
    Sketcher.Constraint("Tangent", 2, 1, 3, 2),
    Sketcher.Constraint("Tangent", 3, 1, 4, 2),
    Sketcher.Constraint("Tangent", 4, 1, 5, 2),
    Sketcher.Constraint("Tangent", 5, 1, 0, 1),
    Sketcher.Constraint("Coincident", 6, 2, 7, 1),
    Sketcher.Constraint("Coincident", 7, 2, 8, 1),
    Sketcher.Constraint("Coincident", 8, 2, 6, 1),
    Sketcher.Constraint("Vertical", 0),
    Sketcher.Constraint("Vertical", 6),
    Sketcher.Constraint("Coincident", 7, 3, 4, 3),
    Sketcher.Constraint("Coincident", 8, 3, 2, 3),
    Sketcher.Constraint("Equal", 1, 3),
    Sketcher.Constraint("Equal", 2, 4),
    Sketcher.Constraint("Equal", 3, 5),
    Sketcher.Constraint("Equal", 7, 8),
    Sketcher.Constraint("Horizontal", 3, 3, 7, 2),
    Sketcher.Constraint("Radius", 1, Q("0.01 in")),
    Sketcher.Constraint("Radius", 2, Q("0.407 in")),
    Sketcher.Constraint("Radius", 7, Q("0.387 in")),
    Sketcher.Constraint("DistanceY", 6, 2, 6, 1, Q("0.038 in")),
    Sketcher.Constraint("DistanceX", -1, 1, 6, 2, Q("3.393 in")),
    Sketcher.Constraint("DistanceX", -1, 1, 7, 2, Q("3.4380002 in")),
    Sketcher.Constraint("DistanceX", 1, 3, 3, 3, Q("0.074 in")),
    Sketcher.Constraint("DistanceY", 2, 3, -1, 1, Q("5.260102 mm")),
])
pad7 = body.newObject("PartDesign::Pad", "Pad006")
pad7.Profile = sketch7
pad7.Length = Q("0.008 in")
pad7.Reversed = True

doc.recompute()
